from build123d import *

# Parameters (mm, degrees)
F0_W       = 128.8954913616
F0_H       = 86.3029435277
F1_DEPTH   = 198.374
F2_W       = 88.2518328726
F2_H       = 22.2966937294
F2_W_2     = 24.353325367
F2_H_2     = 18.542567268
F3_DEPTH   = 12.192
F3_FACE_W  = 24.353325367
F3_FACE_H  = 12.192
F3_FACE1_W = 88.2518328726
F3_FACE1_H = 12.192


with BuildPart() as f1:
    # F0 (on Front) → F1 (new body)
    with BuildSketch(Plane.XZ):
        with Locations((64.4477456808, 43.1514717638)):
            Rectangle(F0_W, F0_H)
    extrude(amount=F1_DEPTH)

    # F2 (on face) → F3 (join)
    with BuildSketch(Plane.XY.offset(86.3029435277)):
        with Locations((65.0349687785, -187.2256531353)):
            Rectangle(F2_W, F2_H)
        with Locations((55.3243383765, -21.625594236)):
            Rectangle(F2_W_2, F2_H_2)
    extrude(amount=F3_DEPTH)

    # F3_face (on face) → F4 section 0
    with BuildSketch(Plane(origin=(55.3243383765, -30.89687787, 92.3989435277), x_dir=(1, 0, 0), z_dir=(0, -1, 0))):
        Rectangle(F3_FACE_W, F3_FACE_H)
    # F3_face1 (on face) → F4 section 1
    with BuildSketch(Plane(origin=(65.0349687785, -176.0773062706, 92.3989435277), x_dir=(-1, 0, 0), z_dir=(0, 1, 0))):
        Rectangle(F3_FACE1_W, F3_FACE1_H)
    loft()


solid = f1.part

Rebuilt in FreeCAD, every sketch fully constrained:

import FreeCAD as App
import Part
import Sketcher
from FreeCAD import Vector
Q = App.Units.Quantity


def add_polygon(sketch, points):
    """Adds a closed chain of lines whose ends are joined by coincident constraints."""
    first, n = sketch.GeometryCount, len(points)
    for a, b in zip(points, points[1:] + points[:1]):
        sketch.addGeometry(Part.LineSegment(App.Vector(*a, 0), App.Vector(*b, 0)), False)
    for i in range(n):
        sketch.addConstraint(Sketcher.Constraint("Coincident", first + i, 2, first + (i + 1) % n, 1))

doc = App.newDocument("Part")
body = doc.addObject("PartDesign::Body", "Body")

# Sketch on XZ plane
sketch1 = body.newObject("Sketcher::SketchObject", "Sketch")
sketch1.AttachmentSupport = (doc.getObject("XZ_Plane"), [""])
sketch1.MapMode = "FlatFace"
add_polygon(sketch1, [(0, 86.302944), (0, 0), (128.895491, 0), (128.895491, 86.302944)])  # lines 0-3
sketch1.addConstraint(Sketcher.Constraint("Vertical", 0))
sketch1.addConstraint(Sketcher.Constraint("Horizontal", 1))
sketch1.addConstraint(Sketcher.Constraint("Vertical", 2))
sketch1.addConstraint(Sketcher.Constraint("Horizontal", 3))
sketch1.addConstraint(Sketcher.Constraint("Coincident", 0, 2, -1, 1))
sketch1.addConstraint(Sketcher.Constraint("DistanceX", 1, 1, 1, 2, Q("128.895491 mm")))
sketch1.addConstraint(Sketcher.Constraint("DistanceY", 0, 2, 0, 1, Q("86.302944 mm")))
pad1 = body.newObject("PartDesign::Pad", "Pad")
pad1.Profile = sketch1
pad1.Length = Q("7.81 in")

# Sketch on XY plane
sketch2 = body.newObject("Sketcher::SketchObject", "Sketch001")
sketch2.AttachmentSupport = (doc.getObject("XY_Plane"), [""])
sketch2.MapMode = "FlatFace"
sketch2.AttachmentOffset = App.Placement(Vector(0, 0, 86.302944), App.Rotation())
add_polygon(sketch2, [(20.909052, -176.077306), (20.909052, -198.374), (109.160885, -198.374), (109.160885, -176.077306)])  # lines 0-3
add_polygon(sketch2, [(43.147676, -12.354311), (43.147676, -30.896878), (67.501001, -30.896878), (67.501001, -12.354311)])  # lines 4-7
sketch2.addConstraint(Sketcher.Constraint("Vertical", 0))
sketch2.addConstraint(Sketcher.Constraint("Horizontal", 1))
sketch2.addConstraint(Sketcher.Constraint("Vertical", 2))
sketch2.addConstraint(Sketcher.Constraint("Horizontal", 3))
sketch2.addConstraint(Sketcher.Constraint("Vertical", 4))
sketch2.addConstraint(Sketcher.Constraint("Horizontal", 5))
sketch2.addConstraint(Sketcher.Constraint("Vertical", 6))
sketch2.addConstraint(Sketcher.Constraint("Horizontal", 7))
sketch2.addConstraint(Sketcher.Constraint("DistanceY", 0, 2, -1, 1, Q("7.81 in")))
sketch2.addConstraint(Sketcher.Constraint("DistanceX", -1, 1, 5, 2, Q("67.501001 mm")))
sketch2.addConstraint(Sketcher.Constraint("DistanceX", 1, 1, 1, 2, Q("88.251833 mm")))
sketch2.addConstraint(Sketcher.Constraint("DistanceX", 5, 1, 5, 2, Q("24.353325 mm")))
sketch2.addConstraint(Sketcher.Constraint("DistanceY", 0, 2, 0, 1, Q("22.296694 mm")))
sketch2.addConstraint(Sketcher.Constraint("DistanceY", 4, 2, 4, 1, Q("18.542567 mm")))
sketch2.addConstraint(Sketcher.Constraint("DistanceY", 6, 2, -1, 1, Q("12.354311 mm")))
sketch2.addConstraint(Sketcher.Constraint("DistanceX", 4, 2, 2, 2, Q("66.01321 mm")))
pad2 = body.newObject("PartDesign::Pad", "Pad001")
pad2.Profile = sketch2
pad2.Length = Q("0.48 in")

# Sketch on XZ plane
sketch3 = body.newObject("Sketcher::SketchObject", "Sketch002")
sketch3.AttachmentSupport = (doc.getObject("XZ_Plane"), [""])
sketch3.MapMode = "FlatFace"
sketch3.AttachmentOffset = App.Placement(Vector(0, 0, 30.896878), App.Rotation())
add_polygon(sketch3, [(43.147676, 98.494944), (43.147676, 86.302944), (67.501001, 86.302944), (67.501001, 98.494944)])  # lines 0-3
sketch3.addConstraint(Sketcher.Constraint("Vertical", 0))
sketch3.addConstraint(Sketcher.Constraint("Horizontal", 1))
sketch3.addConstraint(Sketcher.Constraint("Vertical", 2))
sketch3.addConstraint(Sketcher.Constraint("Horizontal", 3))
sketch3.addConstraint(Sketcher.Constraint("DistanceY", 0, 2, 0, 1, Q("0.48 in")))
sketch3.addConstraint(Sketcher.Constraint("DistanceX", -1, 1, 1, 2, Q("67.501001 mm")))
sketch3.addConstraint(Sketcher.Constraint("DistanceX", 1, 1, 1, 2, Q("24.353325 mm")))
sketch3.addConstraint(Sketcher.Constraint("DistanceY", -1, 1, 0, 2, Q("86.302944 mm")))

# Sketch on XZ plane
sketch4 = body.newObject("Sketcher::SketchObject", "Sketch003")
sketch4.AttachmentSupport = (doc.getObject("XZ_Plane"), [""])
sketch4.MapMode = "FlatFace"
sketch4.AttachmentOffset = App.Placement(Vector(0, 0, 176.077306), App.Rotation())
add_polygon(sketch4, [(109.160885, 98.494944), (109.160885, 86.302944), (20.909052, 86.302944), (20.909052, 98.494944)])  # lines 0-3
sketch4.addConstraint(Sketcher.Constraint("Vertical", 0))
sketch4.addConstraint(Sketcher.Constraint("Horizontal", 1))
sketch4.addConstraint(Sketcher.Constraint("Vertical", 2))
sketch4.addConstraint(Sketcher.Constraint("Horizontal", 3))
sketch4.addConstraint(Sketcher.Constraint("DistanceY", 0, 2, 0, 1, Q("0.48 in")))
sketch4.addConstraint(Sketcher.Constraint("DistanceX", 1, 2, 1, 1, Q("88.251833 mm")))
sketch4.addConstraint(Sketcher.Constraint("DistanceX", -1, 1, 0, 2, Q("109.160885 mm")))
sketch4.addConstraint(Sketcher.Constraint("DistanceY", -1, 1, 0, 2, Q("86.302944 mm")))

additiveloft = body.newObject("PartDesign::AdditiveLoft", "AdditiveLoft")
additiveloft.Profile = sketch3
additiveloft.Sections = [sketch4]

doc.recompute()
